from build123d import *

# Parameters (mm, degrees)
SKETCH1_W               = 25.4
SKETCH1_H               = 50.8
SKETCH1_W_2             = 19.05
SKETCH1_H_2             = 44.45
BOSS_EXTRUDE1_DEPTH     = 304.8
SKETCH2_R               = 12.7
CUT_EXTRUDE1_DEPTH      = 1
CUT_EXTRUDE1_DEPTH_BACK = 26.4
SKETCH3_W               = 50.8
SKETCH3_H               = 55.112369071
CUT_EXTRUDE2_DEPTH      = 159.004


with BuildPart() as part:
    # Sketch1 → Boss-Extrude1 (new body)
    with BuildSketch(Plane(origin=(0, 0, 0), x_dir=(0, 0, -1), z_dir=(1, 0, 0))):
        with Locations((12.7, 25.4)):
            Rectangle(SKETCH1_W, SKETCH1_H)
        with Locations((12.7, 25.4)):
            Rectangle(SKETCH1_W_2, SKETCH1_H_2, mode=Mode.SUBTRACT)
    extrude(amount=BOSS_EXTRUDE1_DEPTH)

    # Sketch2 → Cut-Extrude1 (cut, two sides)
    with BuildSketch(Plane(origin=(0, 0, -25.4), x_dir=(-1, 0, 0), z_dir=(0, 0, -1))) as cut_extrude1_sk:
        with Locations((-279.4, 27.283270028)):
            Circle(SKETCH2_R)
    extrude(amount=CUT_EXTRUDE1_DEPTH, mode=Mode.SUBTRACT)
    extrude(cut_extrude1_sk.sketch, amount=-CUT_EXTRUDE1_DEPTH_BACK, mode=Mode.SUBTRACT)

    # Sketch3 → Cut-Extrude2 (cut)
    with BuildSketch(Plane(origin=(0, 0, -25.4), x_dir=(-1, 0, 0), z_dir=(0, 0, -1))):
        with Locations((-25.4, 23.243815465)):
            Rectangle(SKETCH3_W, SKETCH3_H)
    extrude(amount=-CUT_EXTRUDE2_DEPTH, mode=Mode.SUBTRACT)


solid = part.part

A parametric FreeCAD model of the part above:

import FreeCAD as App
import Part
import Sketcher

V = App.Vector
Q = App.Units.Quantity

doc = App.newDocument("Part")
body = doc.addObject("PartDesign::Body", "Body")

sketch1 = body.newObject("Sketcher::SketchObject", "Sketch")
sketch1.AttachmentSupport = (doc.getObject("YZ_Plane"), [""])
sketch1.MapMode = "FlatFace"
sketch1.addGeometry([
    Part.LineSegment(V(51, 0, 0), V(0, 0, 0)),
    Part.LineSegment(V(0, 0, 0), V(0, -25, 0)),
    Part.LineSegment(V(0, -25, 0), V(51, -25, 0)),
    Part.LineSegment(V(51, -25, 0), V(51, 0, 0)),
    Part.LineSegment(V(3, -22, 0), V(3, -3, 0)),
    Part.LineSegment(V(3, -3, 0), V(48, -3, 0)),
    Part.LineSegment(V(48, -3, 0), V(48, -22, 0)),
    Part.LineSegment(V(48, -22, 0), V(3, -22, 0)),
], False)
sketch1.addConstraint([
    Sketcher.Constraint("Coincident", 0, 2, 1, 1),
    Sketcher.Constraint("Coincident", 1, 2, 2, 1),
    Sketcher.Constraint("Coincident", 2, 2, 3, 1),
    Sketcher.Constraint("Coincident", 3, 2, 0, 1),
    Sketcher.Constraint("Coincident", 4, 2, 5, 1),
    Sketcher.Constraint("Coincident", 5, 2, 6, 1),
    Sketcher.Constraint("Coincident", 6, 2, 7, 1),
    Sketcher.Constraint("Coincident", 7, 2, 4, 1),
    Sketcher.Constraint("Horizontal", 0),
    Sketcher.Constraint("Vertical", 1),
    Sketcher.Constraint("Horizontal", 2),
    Sketcher.Constraint("Vertical", 3),
    Sketcher.Constraint("Vertical", 4),
    Sketcher.Constraint("Horizontal", 5),
    Sketcher.Constraint("Vertical", 6),
    Sketcher.Constraint("Horizontal", 7),
    Sketcher.Constraint("Coincident", 0, 2, -1, 1),
    Sketcher.Constraint("DistanceX", 0, 2, 0, 1, Q("2 in")),
    Sketcher.Constraint("DistanceY", 1, 2, 1, 1, Q("1 in")),
    Sketcher.Constraint("DistanceX", 5, 1, 5, 2, Q("1.75 in")),
    Sketcher.Constraint("DistanceY", 4, 1, 4, 2, Q("0.75 in")),
    Sketcher.Constraint("DistanceX", -1, 1, 4, 2, Q("0.125 in")),
    Sketcher.Constraint("DistanceY", 4, 2, -1, 1, Q("0.125 in")),
])
pad1 = body.newObject("PartDesign::Pad", "Pad")
pad1.Profile = sketch1
pad1.Length = Q("12 in")

sketch2 = body.newObject("Sketcher::SketchObject", "Sketch001")
sketch2.AttachmentSupport = (doc.getObject("XY_Plane"), [""])
sketch2.MapMode = "FlatFace"
sketch2.AttachmentOffset = App.Placement(V(0, 0, -1 * 25.4), App.Rotation())
sketch2.addGeometry(Part.Circle(V(279, 27, 0), V(0, 0, 1), 13), False)
sketch2.addConstraint([
    Sketcher.Constraint("Diameter", 0, Q("1 in")),
    Sketcher.Constraint("DistanceX", -1, 1, 0, 3, Q("11 in")),
    Sketcher.Constraint("DistanceY", -1, 1, 0, 3, 27.28327),
])
pocket1 = body.newObject("PartDesign::Pocket", "Pocket")
pocket1.Profile = sketch2
pocket1.Type = "ThroughAll"
pocket1.Midplane = True

sketch3 = body.newObject("Sketcher::SketchObject", "Sketch002")
sketch3.AttachmentSupport = (doc.getObject("XY_Plane"), [""])
sketch3.MapMode = "FlatFace"
sketch3.AttachmentOffset = App.Placement(V(0, 0, -1 * 25.4), App.Rotation())
sketch3.addGeometry([
    Part.LineSegment(V(51, 51, 0), V(51, -4, 0)),
    Part.LineSegment(V(51, -4, 0), V(0, -4, 0)),
    Part.LineSegment(V(0, -4, 0), V(0, 51, 0)),
    Part.LineSegment(V(0, 51, 0), V(51, 51, 0)),
], False)
sketch3.addConstraint([
    Sketcher.Constraint("Coincident", 0, 2, 1, 1),
    Sketcher.Constraint("Coincident", 1, 2, 2, 1),
    Sketcher.Constraint("Coincident", 2, 2, 3, 1),
    Sketcher.Constraint("Coincident", 3, 2, 0, 1),
    Sketcher.Constraint("Vertical", 0),
    Sketcher.Constraint("Horizontal", 1),
    Sketcher.Constraint("Vertical", 2),
    Sketcher.Constraint("Horizontal", 3),
    Sketcher.Constraint("PointOnObject", 1, 2, -2),
    Sketcher.Constraint("DistanceX", 1, 2, 1, 1, Q("2 in")),
    Sketcher.Constraint("DistanceY", -1, 1, 2, 2, Q("2 in")),
    Sketcher.Constraint("DistanceY", 0, 2, 0, 1, 55.112369),
])
pocket2 = body.newObject("PartDesign::Pocket", "Pocket001")
pocket2.Profile = sketch3
pocket2.Length = Q("6.26 in")
pocket2.Reversed = True

doc.recompute()
